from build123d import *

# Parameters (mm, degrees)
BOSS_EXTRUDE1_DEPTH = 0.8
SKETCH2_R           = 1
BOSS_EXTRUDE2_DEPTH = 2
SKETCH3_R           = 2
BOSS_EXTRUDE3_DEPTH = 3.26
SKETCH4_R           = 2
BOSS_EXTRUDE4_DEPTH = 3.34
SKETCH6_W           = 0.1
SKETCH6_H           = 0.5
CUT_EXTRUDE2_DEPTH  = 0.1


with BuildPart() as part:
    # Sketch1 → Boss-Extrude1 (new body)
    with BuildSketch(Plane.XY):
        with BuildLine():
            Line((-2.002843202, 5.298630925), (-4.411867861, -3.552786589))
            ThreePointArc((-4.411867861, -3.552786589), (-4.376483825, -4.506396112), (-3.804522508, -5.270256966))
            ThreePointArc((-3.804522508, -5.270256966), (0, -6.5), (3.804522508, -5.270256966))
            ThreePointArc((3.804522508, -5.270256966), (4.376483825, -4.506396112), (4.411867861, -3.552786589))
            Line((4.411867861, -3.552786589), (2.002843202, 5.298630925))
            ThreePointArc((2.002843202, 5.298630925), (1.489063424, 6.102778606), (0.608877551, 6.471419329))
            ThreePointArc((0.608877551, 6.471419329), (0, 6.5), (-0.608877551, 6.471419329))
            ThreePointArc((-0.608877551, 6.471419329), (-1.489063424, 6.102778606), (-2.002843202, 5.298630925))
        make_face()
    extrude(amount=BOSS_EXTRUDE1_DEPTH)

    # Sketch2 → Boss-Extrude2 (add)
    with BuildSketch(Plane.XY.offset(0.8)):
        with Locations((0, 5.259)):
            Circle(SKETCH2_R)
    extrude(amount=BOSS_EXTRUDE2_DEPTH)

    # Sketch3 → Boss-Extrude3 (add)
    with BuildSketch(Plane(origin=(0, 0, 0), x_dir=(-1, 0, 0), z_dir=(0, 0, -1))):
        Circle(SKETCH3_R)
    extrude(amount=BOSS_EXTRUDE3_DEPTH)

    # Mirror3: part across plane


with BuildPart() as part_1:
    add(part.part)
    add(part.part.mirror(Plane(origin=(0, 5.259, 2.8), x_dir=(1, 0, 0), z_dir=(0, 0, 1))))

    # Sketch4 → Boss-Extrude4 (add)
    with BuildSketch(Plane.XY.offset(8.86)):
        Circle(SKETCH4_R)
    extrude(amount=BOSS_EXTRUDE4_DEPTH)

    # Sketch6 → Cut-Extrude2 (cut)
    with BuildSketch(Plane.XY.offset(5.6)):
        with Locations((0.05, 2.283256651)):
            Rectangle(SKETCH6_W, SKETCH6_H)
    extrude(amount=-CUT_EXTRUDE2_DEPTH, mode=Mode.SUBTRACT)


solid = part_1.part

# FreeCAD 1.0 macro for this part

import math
import FreeCAD as App
import Part
import Sketcher
Q = App.Units.Quantity

doc = App.newDocument("Part")
body = doc.addObject("PartDesign::Body", "Body")

# Sketch on XY plane
sketch1 = doc.addObject("Sketcher::SketchObject", "Sketch")
body.addObject(sketch1)
sketch1.AttachmentSupport = (doc.XY_Plane, [""])
sketch1.MapMode = "FlatFace"
sketch1.addGeometry(Part.LineSegment(App.Vector(-2.002843, 5.298631, 0), App.Vector(-4.411868, -3.552787, 0)), False)
sketch1.addGeometry(Part.ArcOfCircle(Part.Circle(App.Vector(-2.868025, -3.972963, 0), App.Vector(0, 0, 1), 1.6), math.radians(164.775), math.radians(234.175025)), False)
sketch1.addGeometry(Part.ArcOfCircle(Part.Circle(App.Vector(0, 0, 0), App.Vector(0, 0, 1), 6.5), math.radians(-125.824975), math.radians(-54.175025)), False)
sketch1.addGeometry(Part.ArcOfCircle(Part.Circle(App.Vector(2.868025, -3.972963, 0), App.Vector(0, 0, 1), 1.6), math.radians(-54.175025), math.radians(15.225)), False)
sketch1.addGeometry(Part.LineSegment(App.Vector(4.411868, -3.552787, 0), App.Vector(2.002843, 5.298631, 0)), False)
sketch1.addGeometry(Part.ArcOfCircle(Part.Circle(App.Vector(0.459, 4.878455, 0), App.Vector(0, 0, 1), 1.6), math.radians(15.225), math.radians(84.625025)), False)
sketch1.addGeometry(Part.ArcOfCircle(Part.Circle(App.Vector(0, 0, 0), App.Vector(0, 0, 1), 6.5), math.radians(84.625025), math.radians(95.374975)), False)
sketch1.addGeometry(Part.ArcOfCircle(Part.Circle(App.Vector(-0.459, 4.878455, 0), App.Vector(0, 0, 1), 1.6), math.radians(95.374975), math.radians(164.775)), False)
sketch1.addConstraint(Sketcher.Constraint("Tangent", 0, 2, 1, 1))
sketch1.addConstraint(Sketcher.Constraint("Tangent", 1, 2, 2, 1))
sketch1.addConstraint(Sketcher.Constraint("Tangent", 2, 2, 3, 1))
sketch1.addConstraint(Sketcher.Constraint("Tangent", 3, 2, 4, 1))
sketch1.addConstraint(Sketcher.Constraint("Tangent", 4, 2, 5, 1))
sketch1.addConstraint(Sketcher.Constraint("Tangent", 5, 2, 6, 1))
sketch1.addConstraint(Sketcher.Constraint("Tangent", 6, 2, 7, 1))
sketch1.addConstraint(Sketcher.Constraint("Tangent", 7, 2, 0, 1))
sketch1.addConstraint(Sketcher.Constraint("Coincident", 2, 3, -1, 1))
sketch1.addConstraint(Sketcher.Constraint("Coincident", 6, 3, -1, 1))
sketch1.addConstraint(Sketcher.Constraint("Equal", 1, 3))
sketch1.addConstraint(Sketcher.Constraint("Equal", 3, 5))
sketch1.addConstraint(Sketcher.Constraint("Equal", 2, 6))
sketch1.addConstraint(Sketcher.Constraint("Equal", 5, 7))
sketch1.addConstraint(Sketcher.Constraint("Symmetric", 0, 2, 3, 2, -2))
sketch1.addConstraint(Sketcher.Constraint("Radius", 1, Q("1.6 mm")))
sketch1.addConstraint(Sketcher.Constraint("Radius", 2, Q("6.5 mm")))
sketch1.addConstraint(Sketcher.Constraint("DistanceX", -1, 1, 5, 3, Q("0.459 mm")))
sketch1.addConstraint(Sketcher.Constraint("DistanceY", -1, 1, 4, 2, Q("5.298631 mm")))
pad1 = doc.addObject("PartDesign::Pad", "Pad")
body.addObject(pad1)
pad1.Profile = sketch1
pad1.Length = 0.8

# Sketch on XY plane
sketch2 = doc.addObject("Sketcher::SketchObject", "Sketch001")
body.addObject(sketch2)
sketch2.AttachmentSupport = (doc.XY_Plane, [""])
sketch2.MapMode = "FlatFace"
sketch2.AttachmentOffset = App.Placement(App.Vector(0, 0, 0.8), App.Rotation())
sketch2.addGeometry(Part.Circle(App.Vector(0, 5.259, 0), App.Vector(0, 0, 1), 1), False)
sketch2.addConstraint(Sketcher.Constraint("PointOnObject", 0, 3, -2))
sketch2.addConstraint(Sketcher.Constraint("Diameter", 0, Q("2 mm")))
sketch2.addConstraint(Sketcher.Constraint("DistanceY", -1, 1, 0, 3, Q("5.259 mm")))
pad2 = doc.addObject("PartDesign::Pad", "Pad001")
body.addObject(pad2)
pad2.Profile = sketch2
pad2.Length = 2

# Sketch on XY plane
sketch3 = doc.addObject("Sketcher::SketchObject", "Sketch002")
body.addObject(sketch3)
sketch3.AttachmentSupport = (doc.XY_Plane, [""])
sketch3.MapMode = "FlatFace"
sketch3.addGeometry(Part.Circle(App.Vector(0, 0, 0), App.Vector(0, 0, 1), 2), False)
sketch3.addConstraint(Sketcher.Constraint("Coincident", 0, 3, -1, 1))
sketch3.addConstraint(Sketcher.Constraint("Diameter", 0, Q("4 mm")))
pad3 = doc.addObject("PartDesign::Pad", "Pad002")
body.addObject(pad3)
pad3.Profile = sketch3
pad3.Length = 3.26
pad3.Reversed = True
body2 = doc.addObject("PartDesign::Body", "Body001")
doc.recompute()

body2.BaseFeature = body
doc.recompute()

mirroring = doc.addObject("Part::Mirroring", "Mirroring")
mirroring.Source = body
mirroring.Base = App.Vector(0, 5.259, 2.8)
mirroring.Normal = App.Vector(0, 0, 1)
body3 = doc.addObject("PartDesign::Body", "Body002")
body3.BaseFeature = mirroring
boolean = doc.addObject("PartDesign::Boolean", "Boolean")
body2.addObject(boolean)
boolean.Type = "Fuse"
boolean.addObjects([body3])
doc.recompute()

# Sketch on XY plane
sketch4 = doc.addObject("Sketcher::SketchObject", "Sketch003")
body2.addObject(sketch4)
sketch4.AttachmentSupport = (doc.getObject("XY_Plane001"), [""])
sketch4.MapMode = "FlatFace"
sketch4.AttachmentOffset = App.Placement(App.Vector(0, 0, 8.86), App.Rotation())
sketch4.addGeometry(Part.Circle(App.Vector(0, 0, 0), App.Vector(0, 0, 1), 2), False)
sketch4.addConstraint(Sketcher.Constraint("Coincident", 0, 3, -1, 1))
sketch4.addConstraint(Sketcher.Constraint("Diameter", 0, Q("4 mm")))
pad4 = doc.addObject("PartDesign::Pad", "Pad003")
body2.addObject(pad4)
pad4.Profile = sketch4
pad4.Length = 3.34

# Sketch on XY plane
sketch5 = doc.addObject("Sketcher::SketchObject", "Sketch004")
body2.addObject(sketch5)
sketch5.AttachmentSupport = (doc.getObject("XY_Plane001"), [""])
sketch5.MapMode = "FlatFace"
sketch5.AttachmentOffset = App.Placement(App.Vector(0, 0, 5.6), App.Rotation())
sketch5.addGeometry(Part.LineSegment(App.Vector(0, 2.533257, 0), App.Vector(0, 2.033257, 0)), False)
sketch5.addGeometry(Part.LineSegment(App.Vector(0, 2.033257, 0), App.Vector(0.1, 2.033257, 0)), False)
sketch5.addGeometry(Part.LineSegment(App.Vector(0.1, 2.033257, 0), App.Vector(0.1, 2.533257, 0)), False)
sketch5.addGeometry(Part.LineSegment(App.Vector(0.1, 2.533257, 0), App.Vector(0, 2.533257, 0)), False)
sketch5.addConstraint(Sketcher.Constraint("Coincident", 0, 2, 1, 1))
sketch5.addConstraint(Sketcher.Constraint("Coincident", 1, 2, 2, 1))
sketch5.addConstraint(Sketcher.Constraint("Coincident", 2, 2, 3, 1))
sketch5.addConstraint(Sketcher.Constraint("Coincident", 3, 2, 0, 1))
sketch5.addConstraint(Sketcher.Constraint("Vertical", 0))
sketch5.addConstraint(Sketcher.Constraint("Horizontal", 1))
sketch5.addConstraint(Sketcher.Constraint("Vertical", 2))
sketch5.addConstraint(Sketcher.Constraint("Horizontal", 3))
sketch5.addConstraint(Sketcher.Constraint("PointOnObject", 0, 2, -2))
sketch5.addConstraint(Sketcher.Constraint("DistanceX", 1, 1, 1, 2, Q("0.1 mm")))
sketch5.addConstraint(Sketcher.Constraint("DistanceY", 0, 2, 0, 1, Q("0.5 mm")))
sketch5.addConstraint(Sketcher.Constraint("DistanceY", -1, 1, 0, 2, Q("2.033257 mm")))
pocket1 = doc.addObject("PartDesign::Pocket", "Pocket")
body2.addObject(pocket1)
pocket1.Profile = sketch5
pocket1.Length = 0.1
mirroring.Visibility = False

doc.recompute()
